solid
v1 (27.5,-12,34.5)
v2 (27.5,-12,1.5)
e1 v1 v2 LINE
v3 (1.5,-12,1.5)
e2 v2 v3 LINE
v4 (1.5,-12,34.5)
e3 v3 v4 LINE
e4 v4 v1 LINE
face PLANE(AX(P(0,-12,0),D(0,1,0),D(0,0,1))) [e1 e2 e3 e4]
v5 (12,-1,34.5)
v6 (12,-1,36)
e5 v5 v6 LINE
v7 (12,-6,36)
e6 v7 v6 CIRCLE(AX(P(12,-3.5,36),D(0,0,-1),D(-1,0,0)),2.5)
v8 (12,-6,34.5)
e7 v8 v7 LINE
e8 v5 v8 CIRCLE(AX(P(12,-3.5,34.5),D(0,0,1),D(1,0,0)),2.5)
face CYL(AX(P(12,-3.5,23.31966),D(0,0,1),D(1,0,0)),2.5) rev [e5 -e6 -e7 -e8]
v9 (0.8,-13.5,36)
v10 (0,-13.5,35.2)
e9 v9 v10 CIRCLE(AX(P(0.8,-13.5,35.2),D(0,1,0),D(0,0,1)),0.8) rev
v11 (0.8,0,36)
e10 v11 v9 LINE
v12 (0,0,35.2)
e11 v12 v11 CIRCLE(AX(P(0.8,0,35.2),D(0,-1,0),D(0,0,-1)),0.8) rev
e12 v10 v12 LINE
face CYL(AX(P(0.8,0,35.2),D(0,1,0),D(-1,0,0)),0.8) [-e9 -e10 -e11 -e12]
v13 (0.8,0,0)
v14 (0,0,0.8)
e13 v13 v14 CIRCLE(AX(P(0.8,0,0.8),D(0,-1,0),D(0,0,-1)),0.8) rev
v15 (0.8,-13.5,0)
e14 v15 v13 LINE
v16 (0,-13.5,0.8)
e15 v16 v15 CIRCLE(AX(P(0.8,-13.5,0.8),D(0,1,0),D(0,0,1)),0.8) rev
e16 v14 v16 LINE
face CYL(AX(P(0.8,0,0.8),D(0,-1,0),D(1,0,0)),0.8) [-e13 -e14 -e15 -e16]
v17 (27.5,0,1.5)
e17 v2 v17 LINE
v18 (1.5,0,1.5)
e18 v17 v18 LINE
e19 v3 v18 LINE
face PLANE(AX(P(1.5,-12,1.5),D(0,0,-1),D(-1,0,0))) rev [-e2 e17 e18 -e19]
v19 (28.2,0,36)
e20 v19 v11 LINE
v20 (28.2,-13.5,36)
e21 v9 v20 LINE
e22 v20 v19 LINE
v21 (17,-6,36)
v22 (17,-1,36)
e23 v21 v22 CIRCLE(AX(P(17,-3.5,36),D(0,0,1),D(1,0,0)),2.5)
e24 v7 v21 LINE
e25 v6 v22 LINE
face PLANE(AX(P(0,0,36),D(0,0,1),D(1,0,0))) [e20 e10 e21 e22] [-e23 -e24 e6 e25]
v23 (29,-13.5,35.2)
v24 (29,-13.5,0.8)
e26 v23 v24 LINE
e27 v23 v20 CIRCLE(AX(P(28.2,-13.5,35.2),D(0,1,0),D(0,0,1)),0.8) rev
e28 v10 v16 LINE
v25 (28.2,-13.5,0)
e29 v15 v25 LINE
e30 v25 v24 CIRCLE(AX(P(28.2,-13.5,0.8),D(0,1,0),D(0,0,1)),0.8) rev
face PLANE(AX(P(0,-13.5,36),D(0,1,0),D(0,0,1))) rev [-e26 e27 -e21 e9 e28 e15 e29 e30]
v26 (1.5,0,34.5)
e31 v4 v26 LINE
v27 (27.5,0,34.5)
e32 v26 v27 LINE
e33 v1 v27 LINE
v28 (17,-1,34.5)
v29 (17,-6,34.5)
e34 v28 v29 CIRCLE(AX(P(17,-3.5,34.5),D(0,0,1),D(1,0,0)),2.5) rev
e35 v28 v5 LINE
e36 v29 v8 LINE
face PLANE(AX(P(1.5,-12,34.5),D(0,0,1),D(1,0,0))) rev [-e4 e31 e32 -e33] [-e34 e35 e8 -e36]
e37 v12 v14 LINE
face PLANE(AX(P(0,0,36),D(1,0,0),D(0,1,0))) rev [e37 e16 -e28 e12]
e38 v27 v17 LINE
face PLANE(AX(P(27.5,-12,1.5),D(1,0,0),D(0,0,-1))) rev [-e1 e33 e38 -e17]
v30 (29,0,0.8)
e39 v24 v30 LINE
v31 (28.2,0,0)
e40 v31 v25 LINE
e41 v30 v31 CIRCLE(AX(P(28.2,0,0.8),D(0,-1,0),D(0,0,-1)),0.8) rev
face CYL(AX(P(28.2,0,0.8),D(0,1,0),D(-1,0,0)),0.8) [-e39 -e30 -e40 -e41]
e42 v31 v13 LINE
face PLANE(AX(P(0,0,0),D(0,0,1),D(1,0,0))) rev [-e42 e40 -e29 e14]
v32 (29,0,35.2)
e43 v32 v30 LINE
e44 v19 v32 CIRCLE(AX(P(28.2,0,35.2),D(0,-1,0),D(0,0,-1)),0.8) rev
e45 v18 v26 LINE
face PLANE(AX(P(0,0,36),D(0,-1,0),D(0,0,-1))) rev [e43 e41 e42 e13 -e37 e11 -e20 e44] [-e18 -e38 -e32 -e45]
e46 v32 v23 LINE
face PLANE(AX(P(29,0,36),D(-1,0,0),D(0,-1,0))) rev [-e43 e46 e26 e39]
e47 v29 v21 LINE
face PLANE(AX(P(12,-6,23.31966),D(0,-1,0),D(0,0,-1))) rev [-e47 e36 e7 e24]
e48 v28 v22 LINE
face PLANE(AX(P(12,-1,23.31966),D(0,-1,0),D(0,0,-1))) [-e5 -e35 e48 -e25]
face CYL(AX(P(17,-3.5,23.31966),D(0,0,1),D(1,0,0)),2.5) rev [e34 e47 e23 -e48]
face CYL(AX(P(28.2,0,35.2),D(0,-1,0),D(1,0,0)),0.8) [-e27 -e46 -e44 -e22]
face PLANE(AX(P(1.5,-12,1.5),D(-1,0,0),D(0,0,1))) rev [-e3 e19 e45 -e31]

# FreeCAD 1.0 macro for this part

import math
import FreeCAD as App
import Part
import Sketcher
from FreeCAD import Vector


def edges_at(feature, points):
    """Names of the edges that pass closest to the given points."""
    edges = feature.Shape.Edges
    near = lambda p: min(range(len(edges)), key=lambda i: edges[i].distToShape(Part.Vertex(*p))[0])
    return sorted({f"Edge{near(p) + 1}" for p in points})


def add_polygon(sketch, points):
    """Adds a closed chain of lines whose ends are joined by coincident constraints."""
    first, n = sketch.GeometryCount, len(points)
    for a, b in zip(points, points[1:] + points[:1]):
        sketch.addGeometry(Part.LineSegment(App.Vector(*a, 0), App.Vector(*b, 0)), False)
    for i in range(n):
        sketch.addConstraint(Sketcher.Constraint("Coincident", first + i, 2, first + (i + 1) % n, 1))

doc = App.newDocument("Part")
params = doc.addObject("Spreadsheet::Sheet", "Params")
for row, (alias, value) in enumerate([
    ("sketch1_width", "29 mm"),
    ("sketch1_height", "13.5 mm"),
    ("pad1_length", "36 mm"),
    ("sketch2_width", "26 mm"),
    ("sketch2_height", "33 mm"),
    ("pocket1_length", "12 mm"),
    ("sketch3_radius", "2.5 mm"),
    ("sketch3_width", "5 mm"),
    ("pocket2_length", "1.5 mm"),
    ("fillet_radius", "0.8 mm"),
], start=1):
    params.set(f"A{row}", alias)
    params.set(f"B{row}", "=" + value)
    params.setAlias(f"B{row}", alias)

body = doc.addObject("PartDesign::Body", "Body")

sketch1 = body.newObject("Sketcher::SketchObject", "Sketch")
sketch1.AttachmentSupport = (doc.getObject("XY_Plane"), [""])
sketch1.MapMode = "FlatFace"
add_polygon(sketch1, [(0, 0), (0, -14), (29, -14), (29, 0)])
sketch1.addConstraint([
    Sketcher.Constraint("Vertical", 0),
    Sketcher.Constraint("Horizontal", 1),
    Sketcher.Constraint("Vertical", 2),
    Sketcher.Constraint("Horizontal", 3),
    Sketcher.Constraint("Coincident", 3, 2, -1, 1),
    Sketcher.Constraint("DistanceX", 1, 1, 1, 2, 29.0),
    Sketcher.Constraint("DistanceY", 0, 2, 0, 1, 13.5),
])
sketch1.setExpression("Constraints[9]", "Params.sketch1_width")
sketch1.setExpression("Constraints[10]", "Params.sketch1_height")
pad1 = body.newObject("PartDesign::Pad", "Pad")
pad1.Profile = sketch1
pad1.setExpression("Length", "Params.pad1_length")

sketch2 = body.newObject("Sketcher::SketchObject", "Sketch001")
sketch2.AttachmentSupport = (doc.getObject("XZ_Plane"), [""])
sketch2.MapMode = "FlatFace"
add_polygon(sketch2, [(2, 2), (2, 34), (28, 34), (28, 2)])
sketch2.addConstraint([
    Sketcher.Constraint("Vertical", 0),
    Sketcher.Constraint("Horizontal", 1),
    Sketcher.Constraint("Vertical", 2),
    Sketcher.Constraint("Horizontal", 3),
    Sketcher.Constraint("DistanceX", 1, 1, 1, 2, 26.0),
    Sketcher.Constraint("DistanceY", 0, 1, 0, 2, 33.0),
    Sketcher.Constraint("DistanceX", -1, 1, 0, 2, 1.5),
    Sketcher.Constraint("DistanceY", -1, 1, 0, 2, 34.5),
])
sketch2.setExpression("Constraints[8]", "Params.sketch2_width")
sketch2.setExpression("Constraints[9]", "Params.sketch2_height")
pocket1 = body.newObject("PartDesign::Pocket", "Pocket")
pocket1.Profile = sketch2
pocket1.setExpression("Length", "Params.pocket1_length")
pocket1.Reversed = True

sketch3 = body.newObject("Sketcher::SketchObject", "Sketch002")
sketch3.AttachmentSupport = (doc.getObject("XY_Plane"), [""])
sketch3.MapMode = "FlatFace"
sketch3.AttachmentOffset = App.Placement(Vector(0, 0, 36), App.Rotation())
sketch3.addGeometry([
    Part.LineSegment(Vector(17, -1, 0), Vector(12, -1, 0)),
    Part.ArcOfCircle(Part.Circle(Vector(12, -3.5, 0), Vector(0, 0, 1), 2.5), math.radians(90), math.radians(270)),
    Part.LineSegment(Vector(12, -6, 0), Vector(17, -6, 0)),
    Part.ArcOfCircle(Part.Circle(Vector(17, -3.5, 0), Vector(0, 0, 1), 2.5), math.radians(-90), math.radians(90)),
], False)
sketch3.addConstraint([
    Sketcher.Constraint("Tangent", 0, 2, 1, 1),
    Sketcher.Constraint("Tangent", 1, 2, 2, 1),
    Sketcher.Constraint("Tangent", 2, 2, 3, 1),
    Sketcher.Constraint("Tangent", 3, 2, 0, 1),
    Sketcher.Constraint("Horizontal", 0),
    Sketcher.Constraint("Horizontal", 2),
    Sketcher.Constraint("Radius", 1, 2.5),
    Sketcher.Constraint("DistanceX", 0, 2, 0, 1, 5.0),
    Sketcher.Constraint("DistanceX", -1, 1, 1, 3, 12.0),
    Sketcher.Constraint("DistanceY", 0, 2, -1, 1, 1.0),
])
sketch3.setExpression("Constraints[6]", "Params.sketch3_radius")
sketch3.setExpression("Constraints[7]", "Params.sketch3_width")
pocket2 = body.newObject("PartDesign::Pocket", "Pocket001")
pocket2.Profile = sketch3
pocket2.setExpression("Length", "Params.pocket2_length")
doc.recompute()

fillet = body.newObject("PartDesign::Fillet", "Fillet")
fillet.Base = (pocket2, edges_at(pocket2, [
    (29, -6.75, 36),
    (0, -6.75, 36),
    (29, -6.75, 0),
    (0, -6.75, 0),
]))
fillet.setExpression("Radius", "Params.fillet_radius")

doc.recompute()
